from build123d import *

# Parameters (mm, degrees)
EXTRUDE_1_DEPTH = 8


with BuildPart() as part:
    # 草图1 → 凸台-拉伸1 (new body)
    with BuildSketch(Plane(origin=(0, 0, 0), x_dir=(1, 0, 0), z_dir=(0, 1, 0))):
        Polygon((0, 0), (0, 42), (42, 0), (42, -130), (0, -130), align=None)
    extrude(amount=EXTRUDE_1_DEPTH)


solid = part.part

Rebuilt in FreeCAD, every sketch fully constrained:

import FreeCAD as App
import Part
import Sketcher
from FreeCAD import Vector

doc = App.newDocument("Part")
params = doc.addObject("Spreadsheet::Sheet", "Params")
for row, (alias, value) in enumerate([
    ("sketch1_width", "42 mm"),
    ("sketch1_height", "172 mm"),
    ("sketch1_height2", "130 mm"),
    ("pad1_length", "8 mm"),
], start=1):
    params.set(f"A{row}", alias)
    params.set(f"B{row}", "=" + value)
    params.setAlias(f"B{row}", alias)

body = doc.addObject("PartDesign::Body", "Body")

# Sketch on XZ plane
sketch1 = body.newObject("Sketcher::SketchObject", "Sketch")
sketch1.AttachmentSupport = (doc.getObject("XZ_Plane"), [""])
sketch1.MapMode = "FlatFace"
sketch1.addGeometry(Part.LineSegment(Vector(0, -42, 0), Vector(0, 130, 0)), False)
sketch1.addGeometry(Part.LineSegment(Vector(0, 130, 0), Vector(42, 130, 0)), False)
sketch1.addGeometry(Part.LineSegment(Vector(42, 130, 0), Vector(42, 0, 0)), False)
sketch1.addGeometry(Part.LineSegment(Vector(42, 0, 0), Vector(0, -42, 0)), False)
sketch1.addConstraint(Sketcher.Constraint("Coincident", 0, 2, 1, 1))
sketch1.addConstraint(Sketcher.Constraint("Coincident", 1, 2, 2, 1))
sketch1.addConstraint(Sketcher.Constraint("Coincident", 2, 2, 3, 1))
sketch1.addConstraint(Sketcher.Constraint("Coincident", 3, 2, 0, 1))
sketch1.addConstraint(Sketcher.Constraint("Vertical", 0))
sketch1.addConstraint(Sketcher.Constraint("Horizontal", 1))
sketch1.addConstraint(Sketcher.Constraint("Vertical", 2))
sketch1.addConstraint(Sketcher.Constraint("PointOnObject", 0, 2, -2))
sketch1.addConstraint(Sketcher.Constraint("PointOnObject", 2, 2, -1))
sketch1.addConstraint(Sketcher.Constraint("DistanceX", 1, 1, 1, 2, 42.0))
sketch1.addConstraint(Sketcher.Constraint("DistanceY", 0, 1, 0, 2, 172.0))
sketch1.addConstraint(Sketcher.Constraint("DistanceY", 2, 2, 2, 1, 130.0))
sketch1.setExpression("Constraints[9]", "Params.sketch1_width")
sketch1.setExpression("Constraints[10]", "Params.sketch1_height")
sketch1.setExpression("Constraints[11]", "Params.sketch1_height2")
pad1 = body.newObject("PartDesign::Pad", "Pad")
pad1.Profile = sketch1
pad1.setExpression("Length", "Params.pad1_length")
pad1.Reversed = True

doc.recompute()
